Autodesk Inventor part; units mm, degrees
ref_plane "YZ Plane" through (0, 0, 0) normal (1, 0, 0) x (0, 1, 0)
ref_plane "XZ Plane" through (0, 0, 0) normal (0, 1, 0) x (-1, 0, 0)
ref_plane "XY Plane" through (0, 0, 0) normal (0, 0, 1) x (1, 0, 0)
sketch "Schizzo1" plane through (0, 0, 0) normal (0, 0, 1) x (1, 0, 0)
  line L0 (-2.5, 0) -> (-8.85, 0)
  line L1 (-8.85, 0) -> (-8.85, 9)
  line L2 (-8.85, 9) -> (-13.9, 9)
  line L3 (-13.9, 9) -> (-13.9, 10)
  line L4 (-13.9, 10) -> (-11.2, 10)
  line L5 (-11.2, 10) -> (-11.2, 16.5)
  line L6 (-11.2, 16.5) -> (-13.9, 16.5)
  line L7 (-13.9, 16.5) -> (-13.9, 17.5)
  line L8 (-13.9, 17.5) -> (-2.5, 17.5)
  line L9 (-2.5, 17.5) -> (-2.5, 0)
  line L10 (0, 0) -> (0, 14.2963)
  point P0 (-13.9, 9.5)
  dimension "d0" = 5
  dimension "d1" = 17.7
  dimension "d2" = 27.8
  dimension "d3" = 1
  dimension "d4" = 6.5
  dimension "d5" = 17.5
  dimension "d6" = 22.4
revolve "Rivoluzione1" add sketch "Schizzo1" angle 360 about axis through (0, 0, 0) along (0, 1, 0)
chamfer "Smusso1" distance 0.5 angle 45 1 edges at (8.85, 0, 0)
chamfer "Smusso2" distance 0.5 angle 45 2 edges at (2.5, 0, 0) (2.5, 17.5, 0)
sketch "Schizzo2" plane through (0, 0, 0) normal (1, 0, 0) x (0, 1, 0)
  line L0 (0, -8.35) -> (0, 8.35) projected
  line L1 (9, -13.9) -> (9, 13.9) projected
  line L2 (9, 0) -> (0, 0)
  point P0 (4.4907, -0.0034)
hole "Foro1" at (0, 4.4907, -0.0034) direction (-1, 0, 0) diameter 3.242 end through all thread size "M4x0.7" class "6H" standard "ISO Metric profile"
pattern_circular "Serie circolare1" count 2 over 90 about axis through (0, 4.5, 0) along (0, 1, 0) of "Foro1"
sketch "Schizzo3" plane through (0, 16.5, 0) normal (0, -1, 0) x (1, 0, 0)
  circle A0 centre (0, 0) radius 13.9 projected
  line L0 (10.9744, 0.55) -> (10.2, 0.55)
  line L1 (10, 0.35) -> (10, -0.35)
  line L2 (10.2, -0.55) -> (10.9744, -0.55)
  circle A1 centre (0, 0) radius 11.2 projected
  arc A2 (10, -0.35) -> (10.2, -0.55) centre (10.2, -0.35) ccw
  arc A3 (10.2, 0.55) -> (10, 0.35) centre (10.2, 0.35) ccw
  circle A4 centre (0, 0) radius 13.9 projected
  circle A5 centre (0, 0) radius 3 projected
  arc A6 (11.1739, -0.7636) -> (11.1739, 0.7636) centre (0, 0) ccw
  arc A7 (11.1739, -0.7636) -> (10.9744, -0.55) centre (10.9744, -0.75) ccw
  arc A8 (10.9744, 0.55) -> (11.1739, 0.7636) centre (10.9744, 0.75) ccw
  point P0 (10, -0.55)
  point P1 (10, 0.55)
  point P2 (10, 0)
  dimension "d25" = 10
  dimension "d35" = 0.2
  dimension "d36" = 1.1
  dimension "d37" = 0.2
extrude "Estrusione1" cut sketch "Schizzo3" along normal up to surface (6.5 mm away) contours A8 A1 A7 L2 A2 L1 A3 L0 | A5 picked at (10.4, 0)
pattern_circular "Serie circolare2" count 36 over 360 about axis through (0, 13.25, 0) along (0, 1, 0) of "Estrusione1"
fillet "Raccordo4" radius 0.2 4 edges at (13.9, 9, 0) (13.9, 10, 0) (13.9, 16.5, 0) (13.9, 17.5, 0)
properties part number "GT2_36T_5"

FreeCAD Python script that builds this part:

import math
import FreeCAD as App
import Part
import Sketcher

V = App.Vector


def edges_at(feature, points):
    """Names of the edges that pass closest to the given points."""
    edges = feature.Shape.Edges
    near = lambda p: min(range(len(edges)), key=lambda i: edges[i].distToShape(Part.Vertex(*p))[0])
    return sorted({f"Edge{near(p) + 1}" for p in points})


def add_polygon(sketch, points):
    """Adds a closed chain of lines whose ends are joined by coincident constraints."""
    first, n = sketch.GeometryCount, len(points)
    for a, b in zip(points, points[1:] + points[:1]):
        sketch.addGeometry(Part.LineSegment(App.Vector(*a, 0), App.Vector(*b, 0)), False)
    for i in range(n):
        sketch.addConstraint(Sketcher.Constraint("Coincident", first + i, 2, first + (i + 1) % n, 1))

doc = App.newDocument("Part")
body = doc.addObject("PartDesign::Body", "Body")

sketch1 = doc.addObject("Sketcher::SketchObject", "Sketch")
body.addObject(sketch1)
sketch1.AttachmentSupport = (doc.XY_Plane, [""])
sketch1.MapMode = "FlatFace"
add_polygon(sketch1, [(-8.85, 0), (-2.5, 0), (-2.5, 17.5), (-13.9, 17.5), (-13.9, 16.5), (-11.2, 16.5), (-11.2, 10), (-13.9, 10), (-13.9, 9), (-8.85, 9)])
sketch1.addConstraint(Sketcher.Constraint("Horizontal", 0))
sketch1.addConstraint(Sketcher.Constraint("Vertical", 1))
sketch1.addConstraint(Sketcher.Constraint("Horizontal", 2))
sketch1.addConstraint(Sketcher.Constraint("Vertical", 3))
sketch1.addConstraint(Sketcher.Constraint("Horizontal", 4))
sketch1.addConstraint(Sketcher.Constraint("Vertical", 5))
sketch1.addConstraint(Sketcher.Constraint("Horizontal", 6))
sketch1.addConstraint(Sketcher.Constraint("Vertical", 7))
sketch1.addConstraint(Sketcher.Constraint("Horizontal", 8))
sketch1.addConstraint(Sketcher.Constraint("Vertical", 9))
sketch1.addConstraint(Sketcher.Constraint("PointOnObject", 0, 2, -1))
sketch1.addConstraint(Sketcher.Constraint("Vertical", 3, 2, 6, 2))
sketch1.addConstraint(Sketcher.Constraint("Equal", 3, 7))
sketch1.addConstraint(Sketcher.Constraint("DistanceY", 3, 2, 3, 1, 1.0))
sketch1.addConstraint(Sketcher.Constraint("DistanceY", 1, 1, 1, 2, 17.5))
sketch1.addConstraint(Sketcher.Constraint("DistanceY", 5, 2, 5, 1, 6.5))
sketch1.addConstraint(Sketcher.Constraint("DistanceX", 2, 2, 2, 1, 11.4))
sketch1.addConstraint(Sketcher.Constraint("DistanceX", 4, 1, 4, 2, 2.7))
sketch1.addConstraint(Sketcher.Constraint("DistanceX", 0, 1, 0, 2, 6.35))
sketch1.addConstraint(Sketcher.Constraint("DistanceX", 0, 2, -1, 1, 2.5))
revolution = doc.addObject("PartDesign::Revolution", "Revolution")
body.addObject(revolution)
revolution.Profile = sketch1
revolution.ReferenceAxis = (sketch1, ["V_Axis"])
revolution.Angle = 360
doc.recompute()

chamfer = doc.addObject("PartDesign::Chamfer", "Chamfer")
body.addObject(chamfer)
chamfer.Base = (revolution, edges_at(revolution, [(8.85, 0, 0)]))
chamfer.Size = 0.5
doc.recompute()

chamfer2 = doc.addObject("PartDesign::Chamfer", "Chamfer001")
body.addObject(chamfer2)
chamfer2.Base = (chamfer, edges_at(chamfer, [(2.5, 0, 0), (2.5, 17.5, 0)]))
chamfer2.Size = 0.5

sketch2 = doc.addObject("Sketcher::SketchObject", "Sketch001")
body.addObject(sketch2)
sketch2.AttachmentSupport = (doc.YZ_Plane, [""])
sketch2.MapMode = "FlatFace"
sketch2.addGeometry(Part.Circle(V(4.4907, -0.0034, 0), V(0, 0, 1), 1.621), False)
sketch2.addConstraint(Sketcher.Constraint("Diameter", 0, 3.242))
sketch2.addConstraint(Sketcher.Constraint("DistanceX", -1, 1, 0, 3, 4.4907))
sketch2.addConstraint(Sketcher.Constraint("DistanceY", 0, 3, -1, 1, 0.0034))
doc.recompute()
hole = doc.addObject("PartDesign::Hole", "Hole")
body.addObject(hole)
hole.Profile = sketch2
hole.ThreadType = "None"
hole.Diameter = 3.242
hole.DepthType = "ThroughAll"
doc.recompute()

polarpattern = doc.addObject("PartDesign::PolarPattern", "PolarPattern")
body.addObject(polarpattern)
polarpattern.Originals = [hole]
polarpattern.Axis = (doc.Y_Axis, [""])
polarpattern.Angle = 90
polarpattern.Occurrences = 2
body.Tip = polarpattern

sketch3 = doc.addObject("Sketcher::SketchObject", "Sketch002")
body.addObject(sketch3)
sketch3.AttachmentSupport = (doc.XZ_Plane, [""])
sketch3.MapMode = "FlatFace"
sketch3.AttachmentOffset = App.Placement(V(0, 0, -16.5), App.Rotation())
sketch3.addGeometry(Part.ArcOfCircle(Part.Circle(V(10.9744, 0.75, 0), V(0, 0, 1), 0.2), math.radians(-90), math.radians(3.899844)), False)
sketch3.addGeometry(Part.LineSegment(V(10.9744, 0.55, 0), V(10.2, 0.55, 0)), False)
sketch3.addGeometry(Part.ArcOfCircle(Part.Circle(V(10.2, 0.35, 0), V(0, 0, 1), 0.2), math.radians(90), math.radians(180)), False)
sketch3.addGeometry(Part.LineSegment(V(10, 0.35, 0), V(10, -0.35, 0)), False)
sketch3.addGeometry(Part.ArcOfCircle(Part.Circle(V(10.2, -0.35, 0), V(0, 0, 1), 0.2), math.radians(180), math.radians(270)), False)
sketch3.addGeometry(Part.LineSegment(V(10.2, -0.55, 0), V(10.9744, -0.55, 0)), False)
sketch3.addGeometry(Part.ArcOfCircle(Part.Circle(V(10.9744, -0.75, 0), V(0, 0, 1), 0.199963), math.radians(-3.899844), math.radians(90)), False)
sketch3.addGeometry(Part.ArcOfCircle(Part.Circle(V(0, 0, 0), V(0, 0, 1), 11.2), math.radians(-3.909391), math.radians(3.909391)), False)
sketch3.addGeometry(Part.Circle(V(0, 0, 0), V(0, 0, 1), 3), False)
sketch3.addConstraint(Sketcher.Constraint("Tangent", 0, 1, 1, 1))
sketch3.addConstraint(Sketcher.Constraint("Tangent", 1, 2, 2, 1))
sketch3.addConstraint(Sketcher.Constraint("Tangent", 2, 2, 3, 1))
sketch3.addConstraint(Sketcher.Constraint("Tangent", 3, 2, 4, 1))
sketch3.addConstraint(Sketcher.Constraint("Tangent", 4, 2, 5, 1))
sketch3.addConstraint(Sketcher.Constraint("Tangent", 5, 2, 6, 2))
sketch3.addConstraint(Sketcher.Constraint("Tangent", 6, 1, 7, 1))
sketch3.addConstraint(Sketcher.Constraint("Tangent", 7, 2, 0, 2))
sketch3.addConstraint(Sketcher.Constraint("Horizontal", 1))
sketch3.addConstraint(Sketcher.Constraint("Vertical", 3))
sketch3.addConstraint(Sketcher.Constraint("Horizontal", 5))
sketch3.addConstraint(Sketcher.Constraint("Coincident", 7, 3, -1, 1))
sketch3.addConstraint(Sketcher.Constraint("Coincident", 8, 3, -1, 1))
sketch3.addConstraint(Sketcher.Constraint("Equal", 0, 2))
sketch3.addConstraint(Sketcher.Constraint("Equal", 2, 4))
sketch3.addConstraint(Sketcher.Constraint("Equal", 4, 6))
sketch3.addConstraint(Sketcher.Constraint("Vertical", 0, 3, 6, 3))
sketch3.addConstraint(Sketcher.Constraint("Radius", 0, 0.2))
sketch3.addConstraint(Sketcher.Constraint("Diameter", 8, 6.0))
sketch3.addConstraint(Sketcher.Constraint("DistanceX", -1, 1, 2, 2, 10.0))
sketch3.addConstraint(Sketcher.Constraint("Radius", 7, 11.2))
sketch3.addConstraint(Sketcher.Constraint("DistanceY", 4, 3, 0, 3, 1.1))
pocket1 = doc.addObject("PartDesign::Pocket", "Pocket")
body.addObject(pocket1)
pocket1.Profile = sketch3
pocket1.Length = 6.5
pocket1.Reversed = True
doc.recompute()

polarpattern2 = doc.addObject("PartDesign::PolarPattern", "PolarPattern001")
body.addObject(polarpattern2)
polarpattern2.Originals = [pocket1]
polarpattern2.Axis = (doc.Y_Axis, [""])
polarpattern2.Angle = 360
polarpattern2.Occurrences = 36
body.Tip = polarpattern2
doc.recompute()

fillet = doc.addObject("PartDesign::Fillet", "Fillet")
body.addObject(fillet)
fillet.Base = (polarpattern2, edges_at(polarpattern2, [
    (13.9, 9, 0),
    (13.9, 10, 0),
    (13.9, 16.5, 0),
    (13.9, 17.5, 0),
]))
fillet.Radius = 0.2

doc.recompute()
